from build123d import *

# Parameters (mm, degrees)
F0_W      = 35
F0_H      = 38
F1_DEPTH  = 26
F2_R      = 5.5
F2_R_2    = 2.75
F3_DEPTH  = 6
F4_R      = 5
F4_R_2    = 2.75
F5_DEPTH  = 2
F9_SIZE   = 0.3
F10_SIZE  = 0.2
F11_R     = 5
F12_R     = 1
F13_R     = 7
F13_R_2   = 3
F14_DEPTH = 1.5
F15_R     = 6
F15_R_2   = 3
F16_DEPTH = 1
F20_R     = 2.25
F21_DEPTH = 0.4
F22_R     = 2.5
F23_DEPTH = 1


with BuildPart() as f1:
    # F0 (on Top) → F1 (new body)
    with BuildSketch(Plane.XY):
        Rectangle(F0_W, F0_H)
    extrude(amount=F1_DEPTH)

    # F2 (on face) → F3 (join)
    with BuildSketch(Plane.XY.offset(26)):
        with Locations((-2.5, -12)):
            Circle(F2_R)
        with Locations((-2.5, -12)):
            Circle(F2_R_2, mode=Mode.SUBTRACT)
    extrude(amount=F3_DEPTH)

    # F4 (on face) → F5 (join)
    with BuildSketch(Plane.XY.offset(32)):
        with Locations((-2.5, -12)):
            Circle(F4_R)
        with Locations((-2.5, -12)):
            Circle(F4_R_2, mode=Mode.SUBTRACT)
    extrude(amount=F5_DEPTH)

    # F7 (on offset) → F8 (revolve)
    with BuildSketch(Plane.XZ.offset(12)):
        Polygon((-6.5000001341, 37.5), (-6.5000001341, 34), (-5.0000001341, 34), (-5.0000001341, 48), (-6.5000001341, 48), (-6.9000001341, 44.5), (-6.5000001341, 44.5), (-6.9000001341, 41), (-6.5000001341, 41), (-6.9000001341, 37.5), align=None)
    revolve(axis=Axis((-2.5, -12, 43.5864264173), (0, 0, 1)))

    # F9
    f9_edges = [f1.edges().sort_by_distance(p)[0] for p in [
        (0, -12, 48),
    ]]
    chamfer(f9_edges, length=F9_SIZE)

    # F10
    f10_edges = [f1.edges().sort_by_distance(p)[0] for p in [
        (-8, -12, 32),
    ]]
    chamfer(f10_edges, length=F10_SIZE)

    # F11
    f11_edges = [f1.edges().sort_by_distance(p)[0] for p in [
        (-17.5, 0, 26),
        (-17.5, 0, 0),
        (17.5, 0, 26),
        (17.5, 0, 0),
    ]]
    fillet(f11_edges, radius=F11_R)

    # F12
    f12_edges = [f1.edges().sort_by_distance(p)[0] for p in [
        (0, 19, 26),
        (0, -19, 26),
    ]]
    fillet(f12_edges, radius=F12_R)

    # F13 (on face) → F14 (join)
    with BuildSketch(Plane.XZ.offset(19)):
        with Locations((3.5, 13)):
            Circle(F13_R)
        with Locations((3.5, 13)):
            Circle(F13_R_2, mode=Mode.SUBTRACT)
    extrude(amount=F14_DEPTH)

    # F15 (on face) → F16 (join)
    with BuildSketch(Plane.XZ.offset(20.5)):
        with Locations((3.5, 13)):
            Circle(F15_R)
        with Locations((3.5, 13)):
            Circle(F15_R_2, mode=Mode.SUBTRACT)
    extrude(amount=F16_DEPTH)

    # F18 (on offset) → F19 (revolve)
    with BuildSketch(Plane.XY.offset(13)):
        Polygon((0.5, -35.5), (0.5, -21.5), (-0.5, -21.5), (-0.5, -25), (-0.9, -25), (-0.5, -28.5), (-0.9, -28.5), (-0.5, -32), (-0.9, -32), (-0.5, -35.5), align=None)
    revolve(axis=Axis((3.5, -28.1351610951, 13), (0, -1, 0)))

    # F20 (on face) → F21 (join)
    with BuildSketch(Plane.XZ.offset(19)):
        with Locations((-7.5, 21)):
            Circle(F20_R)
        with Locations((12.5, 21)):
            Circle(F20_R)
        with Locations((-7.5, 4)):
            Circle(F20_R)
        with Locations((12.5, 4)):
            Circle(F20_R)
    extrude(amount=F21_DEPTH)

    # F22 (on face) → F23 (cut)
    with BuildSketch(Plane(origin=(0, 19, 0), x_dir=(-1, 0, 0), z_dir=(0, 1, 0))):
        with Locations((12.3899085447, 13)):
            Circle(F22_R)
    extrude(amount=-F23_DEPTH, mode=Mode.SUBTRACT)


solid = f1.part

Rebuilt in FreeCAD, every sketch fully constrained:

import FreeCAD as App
import Part
import Sketcher

V = App.Vector


def edges_at(feature, points):
    """Names of the edges that pass closest to the given points."""
    edges = feature.Shape.Edges
    near = lambda p: min(range(len(edges)), key=lambda i: edges[i].distToShape(Part.Vertex(*p))[0])
    return sorted({f"Edge{near(p) + 1}" for p in points})


def add_polygon(sketch, points):
    """Adds a closed chain of lines whose ends are joined by coincident constraints."""
    first, n = sketch.GeometryCount, len(points)
    for a, b in zip(points, points[1:] + points[:1]):
        sketch.addGeometry(Part.LineSegment(App.Vector(*a, 0), App.Vector(*b, 0)), False)
    for i in range(n):
        sketch.addConstraint(Sketcher.Constraint("Coincident", first + i, 2, first + (i + 1) % n, 1))

doc = App.newDocument("Part")
body = doc.addObject("PartDesign::Body", "Body")

sketch1 = body.newObject("Sketcher::SketchObject", "Sketch")
sketch1.AttachmentSupport = (doc.getObject("XY_Plane"), [""])
sketch1.MapMode = "FlatFace"
add_polygon(sketch1, [(-18, 19), (-18, -19), (18, -19), (18, 19)])
sketch1.addConstraint(Sketcher.Constraint("Vertical", 0))
sketch1.addConstraint(Sketcher.Constraint("Horizontal", 1))
sketch1.addConstraint(Sketcher.Constraint("Vertical", 2))
sketch1.addConstraint(Sketcher.Constraint("Horizontal", 3))
sketch1.addConstraint(Sketcher.Constraint("Symmetric", 0, 2, 2, 2, -1, 1))
sketch1.addConstraint(Sketcher.Constraint("DistanceX", 1, 1, 1, 2, 35.0))
sketch1.addConstraint(Sketcher.Constraint("DistanceY", 0, 2, 0, 1, 38.0))
pad1 = body.newObject("PartDesign::Pad", "Pad")
pad1.Profile = sketch1
pad1.Length = 26

sketch2 = body.newObject("Sketcher::SketchObject", "Sketch001")
sketch2.AttachmentSupport = (doc.getObject("XY_Plane"), [""])
sketch2.MapMode = "FlatFace"
sketch2.AttachmentOffset = App.Placement(V(0, 0, 26), App.Rotation())
sketch2.addGeometry(Part.Circle(V(-2.5, -12, 0), V(0, 0, 1), 5.5), False)
sketch2.addGeometry(Part.Circle(V(-2.5, -12, 0), V(0, 0, 1), 2.8), False)
sketch2.addConstraint(Sketcher.Constraint("Coincident", 1, 3, 0, 3))
sketch2.addConstraint(Sketcher.Constraint("Diameter", 0, 11.0))
sketch2.addConstraint(Sketcher.Constraint("Diameter", 1, 5.5))
sketch2.addConstraint(Sketcher.Constraint("DistanceY", 0, 3, -1, 1, 12.0))
sketch2.addConstraint(Sketcher.Constraint("DistanceX", 0, 3, -1, 1, 2.5))
pad2 = body.newObject("PartDesign::Pad", "Pad001")
pad2.Profile = sketch2
pad2.Length = 6

sketch3 = body.newObject("Sketcher::SketchObject", "Sketch002")
sketch3.AttachmentSupport = (doc.getObject("XY_Plane"), [""])
sketch3.MapMode = "FlatFace"
sketch3.AttachmentOffset = App.Placement(V(0, 0, 32), App.Rotation())
sketch3.addGeometry(Part.Circle(V(-2.5, -12, 0), V(0, 0, 1), 5), False)
sketch3.addGeometry(Part.Circle(V(-2.5, -12, 0), V(0, 0, 1), 2.8), False)
sketch3.addConstraint(Sketcher.Constraint("Coincident", 1, 3, 0, 3))
sketch3.addConstraint(Sketcher.Constraint("Diameter", 0, 10.0))
sketch3.addConstraint(Sketcher.Constraint("Diameter", 1, 5.5))
sketch3.addConstraint(Sketcher.Constraint("DistanceY", 0, 3, -1, 1, 12.0))
sketch3.addConstraint(Sketcher.Constraint("DistanceX", 0, 3, -1, 1, 2.5))
pad3 = body.newObject("PartDesign::Pad", "Pad002")
pad3.Profile = sketch3
pad3.Length = 2

sketch4 = body.newObject("Sketcher::SketchObject", "Sketch003")
sketch4.AttachmentSupport = (doc.getObject("XZ_Plane"), [""])
sketch4.MapMode = "FlatFace"
sketch4.AttachmentOffset = App.Placement(V(0, 0, 12), App.Rotation())
add_polygon(sketch4, [(-6.5, 37.5), (-6.5, 34), (-5, 34), (-5, 48), (-6.5, 48), (-6.9, 44.5), (-6.5, 44.5), (-6.9, 41), (-6.5, 41), (-6.9, 37.5)])
sketch4.addGeometry(Part.LineSegment(V(-2.5, 34, 0), V(-2.5, 48, 0)), True)
sketch4.addConstraint(Sketcher.Constraint("Vertical", 0))
sketch4.addConstraint(Sketcher.Constraint("Horizontal", 1))
sketch4.addConstraint(Sketcher.Constraint("Vertical", 2))
sketch4.addConstraint(Sketcher.Constraint("Horizontal", 3))
sketch4.addConstraint(Sketcher.Constraint("Horizontal", 5))
sketch4.addConstraint(Sketcher.Constraint("Horizontal", 7))
sketch4.addConstraint(Sketcher.Constraint("Horizontal", 9))
sketch4.addConstraint(Sketcher.Constraint("Vertical", 10))
sketch4.addConstraint(Sketcher.Constraint("Parallel", 4, 6))
sketch4.addConstraint(Sketcher.Constraint("Parallel", 6, 8))
sketch4.addConstraint(Sketcher.Constraint("Horizontal", 1, 2, 10, 1))
sketch4.addConstraint(Sketcher.Constraint("Horizontal", 3, 2, 10, 2))
sketch4.addConstraint(Sketcher.Constraint("Vertical", 0, 2, 3, 2))
sketch4.addConstraint(Sketcher.Constraint("Vertical", 3, 2, 5, 2))
sketch4.addConstraint(Sketcher.Constraint("Vertical", 4, 2, 6, 2))
sketch4.addConstraint(Sketcher.Constraint("Vertical", 5, 2, 7, 2))
sketch4.addConstraint(Sketcher.Constraint("Vertical", 6, 2, 8, 2))
sketch4.addConstraint(Sketcher.Constraint("DistanceY", 2, 1, 2, 2, 14.0))
sketch4.addConstraint(Sketcher.Constraint("DistanceX", 1, 1, 1, 2, 1.5))
sketch4.addConstraint(Sketcher.Constraint("DistanceX", 5, 1, 5, 2, 0.4))
sketch4.addConstraint(Sketcher.Constraint("DistanceY", 0, 2, 0, 1, 3.5))
sketch4.addConstraint(Sketcher.Constraint("DistanceY", -1, 1, 0, 2, 34.0))
sketch4.addConstraint(Sketcher.Constraint("DistanceX", 1, 2, -1, 1, 5.0))
sketch4.addConstraint(Sketcher.Constraint("DistanceX", 0, 2, 10, 1, 4.0))
revolution = body.newObject("PartDesign::Revolution", "Revolution")
revolution.Profile = sketch4
revolution.ReferenceAxis = (sketch4, ["Axis0"])
revolution.Angle = 360
doc.recompute()

chamfer = body.newObject("PartDesign::Chamfer", "Chamfer")
chamfer.Base = (revolution, edges_at(revolution, [(0, -12, 48)]))
chamfer.Size = 0.3
doc.recompute()

chamfer2 = body.newObject("PartDesign::Chamfer", "Chamfer001")
chamfer2.Base = (chamfer, edges_at(chamfer, [(-8, -12, 32)]))
chamfer2.Size = 0.2
doc.recompute()

fillet = body.newObject("PartDesign::Fillet", "Fillet")
fillet.Base = (chamfer2, edges_at(chamfer2, [
    (-17.5, 0, 26),
    (-17.5, 0, 0),
    (17.5, 0, 26),
    (17.5, 0, 0),
]))
fillet.Radius = 5
doc.recompute()

fillet2 = body.newObject("PartDesign::Fillet", "Fillet001")
fillet2.Base = (fillet, edges_at(fillet, [(0, 19, 26), (0, -19, 26)]))
fillet2.Radius = 1

sketch5 = body.newObject("Sketcher::SketchObject", "Sketch004")
sketch5.AttachmentSupport = (doc.getObject("XZ_Plane"), [""])
sketch5.MapMode = "FlatFace"
sketch5.AttachmentOffset = App.Placement(V(0, 0, 19), App.Rotation())
sketch5.addGeometry(Part.Circle(V(3.5, 13, 0), V(0, 0, 1), 7), False)
sketch5.addGeometry(Part.Circle(V(3.5, 13, 0), V(0, 0, 1), 3), False)
sketch5.addConstraint(Sketcher.Constraint("Coincident", 1, 3, 0, 3))
sketch5.addConstraint(Sketcher.Constraint("Diameter", 0, 14.0))
sketch5.addConstraint(Sketcher.Constraint("Diameter", 1, 6.0))
sketch5.addConstraint(Sketcher.Constraint("DistanceY", -1, 1, 0, 3, 13.0))
sketch5.addConstraint(Sketcher.Constraint("DistanceX", -1, 1, 0, 3, 3.5))
pad4 = body.newObject("PartDesign::Pad", "Pad003")
pad4.Profile = sketch5
pad4.Length = 1.5

sketch6 = body.newObject("Sketcher::SketchObject", "Sketch005")
sketch6.AttachmentSupport = (doc.getObject("XZ_Plane"), [""])
sketch6.MapMode = "FlatFace"
sketch6.AttachmentOffset = App.Placement(V(0, 0, 20.5), App.Rotation())
sketch6.addGeometry(Part.Circle(V(3.5, 13, 0), V(0, 0, 1), 6), False)
sketch6.addGeometry(Part.Circle(V(3.5, 13, 0), V(0, 0, 1), 3), False)
sketch6.addConstraint(Sketcher.Constraint("Coincident", 1, 3, 0, 3))
sketch6.addConstraint(Sketcher.Constraint("Diameter", 0, 12.0))
sketch6.addConstraint(Sketcher.Constraint("Diameter", 1, 6.0))
sketch6.addConstraint(Sketcher.Constraint("DistanceY", -1, 1, 0, 3, 13.0))
sketch6.addConstraint(Sketcher.Constraint("DistanceX", -1, 1, 0, 3, 3.5))
pad5 = body.newObject("PartDesign::Pad", "Pad004")
pad5.Profile = sketch6
pad5.Length = 1

sketch7 = body.newObject("Sketcher::SketchObject", "Sketch006")
sketch7.AttachmentSupport = (doc.getObject("XY_Plane"), [""])
sketch7.MapMode = "FlatFace"
sketch7.AttachmentOffset = App.Placement(V(0, 0, 13), App.Rotation())
add_polygon(sketch7, [(0.5, -35.5), (0.5, -21.5), (-0.5, -21.5), (-0.5, -25), (-0.9, -25), (-0.5, -28.5), (-0.9, -28.5), (-0.5, -32), (-0.9, -32), (-0.5, -35.5)])
sketch7.addGeometry(Part.LineSegment(V(3.5, -21.5, 0), V(3.5, -35.5, 0)), True)
sketch7.addConstraint(Sketcher.Constraint("Vertical", 0))
sketch7.addConstraint(Sketcher.Constraint("Horizontal", 1))
sketch7.addConstraint(Sketcher.Constraint("Vertical", 2))
sketch7.addConstraint(Sketcher.Constraint("Horizontal", 3))
sketch7.addConstraint(Sketcher.Constraint("Horizontal", 5))
sketch7.addConstraint(Sketcher.Constraint("Horizontal", 7))
sketch7.addConstraint(Sketcher.Constraint("Horizontal", 9))
sketch7.addConstraint(Sketcher.Constraint("Vertical", 10))
sketch7.addConstraint(Sketcher.Constraint("Parallel", 4, 6))
sketch7.addConstraint(Sketcher.Constraint("Parallel", 6, 8))
sketch7.addConstraint(Sketcher.Constraint("Horizontal", 1, 2, 10, 1))
sketch7.addConstraint(Sketcher.Constraint("Horizontal", 9, 2, 10, 2))
sketch7.addConstraint(Sketcher.Constraint("Vertical", 2, 2, 4, 2))
sketch7.addConstraint(Sketcher.Constraint("Vertical", 3, 2, 5, 2))
sketch7.addConstraint(Sketcher.Constraint("Vertical", 4, 2, 6, 2))
sketch7.addConstraint(Sketcher.Constraint("Vertical", 5, 2, 7, 2))
sketch7.addConstraint(Sketcher.Constraint("Vertical", 6, 2, 8, 2))
sketch7.addConstraint(Sketcher.Constraint("DistanceX", 1, 2, 1, 1, 1.0))
sketch7.addConstraint(Sketcher.Constraint("DistanceY", 0, 1, 0, 2, 14.0))
sketch7.addConstraint(Sketcher.Constraint("DistanceX", 3, 2, 3, 1, 0.4))
sketch7.addConstraint(Sketcher.Constraint("DistanceY", 2, 2, 2, 1, 3.5))
sketch7.addConstraint(Sketcher.Constraint("DistanceY", 2, 2, -1, 1, 25.0))
sketch7.addConstraint(Sketcher.Constraint("DistanceX", 0, 2, 10, 1, 3.0))
sketch7.addConstraint(Sketcher.Constraint("DistanceX", -1, 1, 0, 2, 0.5))
revolution2 = body.newObject("PartDesign::Revolution", "Revolution001")
revolution2.Profile = sketch7
revolution2.ReferenceAxis = (sketch7, ["Axis0"])
revolution2.Angle = 360

sketch8 = body.newObject("Sketcher::SketchObject", "Sketch007")
sketch8.AttachmentSupport = (doc.getObject("XZ_Plane"), [""])
sketch8.MapMode = "FlatFace"
sketch8.AttachmentOffset = App.Placement(V(0, 0, 19), App.Rotation())
sketch8.addGeometry(Part.Circle(V(-7.5, 21, 0), V(0, 0, 1), 2.2), False)
sketch8.addGeometry(Part.Circle(V(12.5, 21, 0), V(0, 0, 1), 2.2), False)
sketch8.addGeometry(Part.Circle(V(-7.5, 4, 0), V(0, 0, 1), 2.2), False)
sketch8.addGeometry(Part.Circle(V(12.5, 4, 0), V(0, 0, 1), 2.2), False)
sketch8.addConstraint(Sketcher.Constraint("Equal", 0, 1))
sketch8.addConstraint(Sketcher.Constraint("Equal", 1, 2))
sketch8.addConstraint(Sketcher.Constraint("Equal", 2, 3))
sketch8.addConstraint(Sketcher.Constraint("Horizontal", 0, 3, 1, 3))
sketch8.addConstraint(Sketcher.Constraint("Horizontal", 2, 3, 3, 3))
sketch8.addConstraint(Sketcher.Constraint("Vertical", 0, 3, 2, 3))
sketch8.addConstraint(Sketcher.Constraint("Vertical", 1, 3, 3, 3))
sketch8.addConstraint(Sketcher.Constraint("Diameter", 0, 4.5))
sketch8.addConstraint(Sketcher.Constraint("DistanceY", -1, 1, 0, 3, 21.0))
sketch8.addConstraint(Sketcher.Constraint("DistanceY", -1, 1, 2, 3, 4.0))
sketch8.addConstraint(Sketcher.Constraint("DistanceX", 0, 3, 1, 3, 20.0))
sketch8.addConstraint(Sketcher.Constraint("DistanceX", 0, 3, -1, 1, 7.5))
pad6 = body.newObject("PartDesign::Pad", "Pad005")
pad6.Profile = sketch8
pad6.Length = 0.4

sketch9 = body.newObject("Sketcher::SketchObject", "Sketch008")
sketch9.AttachmentSupport = (doc.getObject("XZ_Plane"), [""])
sketch9.MapMode = "FlatFace"
sketch9.AttachmentOffset = App.Placement(V(0, 0, -19), App.Rotation())
sketch9.addGeometry(Part.Circle(V(-12.4, 13, 0), V(0, 0, 1), 2.5), False)
sketch9.addConstraint(Sketcher.Constraint("Diameter", 0, 5.0))
sketch9.addConstraint(Sketcher.Constraint("DistanceY", -1, 1, 0, 3, 13.0))
sketch9.addConstraint(Sketcher.Constraint("DistanceX", 0, 3, -1, 1, 12.389909))
pocket1 = body.newObject("PartDesign::Pocket", "Pocket")
pocket1.Profile = sketch9
pocket1.Length = 1
pocket1.Reversed = True

doc.recompute()
